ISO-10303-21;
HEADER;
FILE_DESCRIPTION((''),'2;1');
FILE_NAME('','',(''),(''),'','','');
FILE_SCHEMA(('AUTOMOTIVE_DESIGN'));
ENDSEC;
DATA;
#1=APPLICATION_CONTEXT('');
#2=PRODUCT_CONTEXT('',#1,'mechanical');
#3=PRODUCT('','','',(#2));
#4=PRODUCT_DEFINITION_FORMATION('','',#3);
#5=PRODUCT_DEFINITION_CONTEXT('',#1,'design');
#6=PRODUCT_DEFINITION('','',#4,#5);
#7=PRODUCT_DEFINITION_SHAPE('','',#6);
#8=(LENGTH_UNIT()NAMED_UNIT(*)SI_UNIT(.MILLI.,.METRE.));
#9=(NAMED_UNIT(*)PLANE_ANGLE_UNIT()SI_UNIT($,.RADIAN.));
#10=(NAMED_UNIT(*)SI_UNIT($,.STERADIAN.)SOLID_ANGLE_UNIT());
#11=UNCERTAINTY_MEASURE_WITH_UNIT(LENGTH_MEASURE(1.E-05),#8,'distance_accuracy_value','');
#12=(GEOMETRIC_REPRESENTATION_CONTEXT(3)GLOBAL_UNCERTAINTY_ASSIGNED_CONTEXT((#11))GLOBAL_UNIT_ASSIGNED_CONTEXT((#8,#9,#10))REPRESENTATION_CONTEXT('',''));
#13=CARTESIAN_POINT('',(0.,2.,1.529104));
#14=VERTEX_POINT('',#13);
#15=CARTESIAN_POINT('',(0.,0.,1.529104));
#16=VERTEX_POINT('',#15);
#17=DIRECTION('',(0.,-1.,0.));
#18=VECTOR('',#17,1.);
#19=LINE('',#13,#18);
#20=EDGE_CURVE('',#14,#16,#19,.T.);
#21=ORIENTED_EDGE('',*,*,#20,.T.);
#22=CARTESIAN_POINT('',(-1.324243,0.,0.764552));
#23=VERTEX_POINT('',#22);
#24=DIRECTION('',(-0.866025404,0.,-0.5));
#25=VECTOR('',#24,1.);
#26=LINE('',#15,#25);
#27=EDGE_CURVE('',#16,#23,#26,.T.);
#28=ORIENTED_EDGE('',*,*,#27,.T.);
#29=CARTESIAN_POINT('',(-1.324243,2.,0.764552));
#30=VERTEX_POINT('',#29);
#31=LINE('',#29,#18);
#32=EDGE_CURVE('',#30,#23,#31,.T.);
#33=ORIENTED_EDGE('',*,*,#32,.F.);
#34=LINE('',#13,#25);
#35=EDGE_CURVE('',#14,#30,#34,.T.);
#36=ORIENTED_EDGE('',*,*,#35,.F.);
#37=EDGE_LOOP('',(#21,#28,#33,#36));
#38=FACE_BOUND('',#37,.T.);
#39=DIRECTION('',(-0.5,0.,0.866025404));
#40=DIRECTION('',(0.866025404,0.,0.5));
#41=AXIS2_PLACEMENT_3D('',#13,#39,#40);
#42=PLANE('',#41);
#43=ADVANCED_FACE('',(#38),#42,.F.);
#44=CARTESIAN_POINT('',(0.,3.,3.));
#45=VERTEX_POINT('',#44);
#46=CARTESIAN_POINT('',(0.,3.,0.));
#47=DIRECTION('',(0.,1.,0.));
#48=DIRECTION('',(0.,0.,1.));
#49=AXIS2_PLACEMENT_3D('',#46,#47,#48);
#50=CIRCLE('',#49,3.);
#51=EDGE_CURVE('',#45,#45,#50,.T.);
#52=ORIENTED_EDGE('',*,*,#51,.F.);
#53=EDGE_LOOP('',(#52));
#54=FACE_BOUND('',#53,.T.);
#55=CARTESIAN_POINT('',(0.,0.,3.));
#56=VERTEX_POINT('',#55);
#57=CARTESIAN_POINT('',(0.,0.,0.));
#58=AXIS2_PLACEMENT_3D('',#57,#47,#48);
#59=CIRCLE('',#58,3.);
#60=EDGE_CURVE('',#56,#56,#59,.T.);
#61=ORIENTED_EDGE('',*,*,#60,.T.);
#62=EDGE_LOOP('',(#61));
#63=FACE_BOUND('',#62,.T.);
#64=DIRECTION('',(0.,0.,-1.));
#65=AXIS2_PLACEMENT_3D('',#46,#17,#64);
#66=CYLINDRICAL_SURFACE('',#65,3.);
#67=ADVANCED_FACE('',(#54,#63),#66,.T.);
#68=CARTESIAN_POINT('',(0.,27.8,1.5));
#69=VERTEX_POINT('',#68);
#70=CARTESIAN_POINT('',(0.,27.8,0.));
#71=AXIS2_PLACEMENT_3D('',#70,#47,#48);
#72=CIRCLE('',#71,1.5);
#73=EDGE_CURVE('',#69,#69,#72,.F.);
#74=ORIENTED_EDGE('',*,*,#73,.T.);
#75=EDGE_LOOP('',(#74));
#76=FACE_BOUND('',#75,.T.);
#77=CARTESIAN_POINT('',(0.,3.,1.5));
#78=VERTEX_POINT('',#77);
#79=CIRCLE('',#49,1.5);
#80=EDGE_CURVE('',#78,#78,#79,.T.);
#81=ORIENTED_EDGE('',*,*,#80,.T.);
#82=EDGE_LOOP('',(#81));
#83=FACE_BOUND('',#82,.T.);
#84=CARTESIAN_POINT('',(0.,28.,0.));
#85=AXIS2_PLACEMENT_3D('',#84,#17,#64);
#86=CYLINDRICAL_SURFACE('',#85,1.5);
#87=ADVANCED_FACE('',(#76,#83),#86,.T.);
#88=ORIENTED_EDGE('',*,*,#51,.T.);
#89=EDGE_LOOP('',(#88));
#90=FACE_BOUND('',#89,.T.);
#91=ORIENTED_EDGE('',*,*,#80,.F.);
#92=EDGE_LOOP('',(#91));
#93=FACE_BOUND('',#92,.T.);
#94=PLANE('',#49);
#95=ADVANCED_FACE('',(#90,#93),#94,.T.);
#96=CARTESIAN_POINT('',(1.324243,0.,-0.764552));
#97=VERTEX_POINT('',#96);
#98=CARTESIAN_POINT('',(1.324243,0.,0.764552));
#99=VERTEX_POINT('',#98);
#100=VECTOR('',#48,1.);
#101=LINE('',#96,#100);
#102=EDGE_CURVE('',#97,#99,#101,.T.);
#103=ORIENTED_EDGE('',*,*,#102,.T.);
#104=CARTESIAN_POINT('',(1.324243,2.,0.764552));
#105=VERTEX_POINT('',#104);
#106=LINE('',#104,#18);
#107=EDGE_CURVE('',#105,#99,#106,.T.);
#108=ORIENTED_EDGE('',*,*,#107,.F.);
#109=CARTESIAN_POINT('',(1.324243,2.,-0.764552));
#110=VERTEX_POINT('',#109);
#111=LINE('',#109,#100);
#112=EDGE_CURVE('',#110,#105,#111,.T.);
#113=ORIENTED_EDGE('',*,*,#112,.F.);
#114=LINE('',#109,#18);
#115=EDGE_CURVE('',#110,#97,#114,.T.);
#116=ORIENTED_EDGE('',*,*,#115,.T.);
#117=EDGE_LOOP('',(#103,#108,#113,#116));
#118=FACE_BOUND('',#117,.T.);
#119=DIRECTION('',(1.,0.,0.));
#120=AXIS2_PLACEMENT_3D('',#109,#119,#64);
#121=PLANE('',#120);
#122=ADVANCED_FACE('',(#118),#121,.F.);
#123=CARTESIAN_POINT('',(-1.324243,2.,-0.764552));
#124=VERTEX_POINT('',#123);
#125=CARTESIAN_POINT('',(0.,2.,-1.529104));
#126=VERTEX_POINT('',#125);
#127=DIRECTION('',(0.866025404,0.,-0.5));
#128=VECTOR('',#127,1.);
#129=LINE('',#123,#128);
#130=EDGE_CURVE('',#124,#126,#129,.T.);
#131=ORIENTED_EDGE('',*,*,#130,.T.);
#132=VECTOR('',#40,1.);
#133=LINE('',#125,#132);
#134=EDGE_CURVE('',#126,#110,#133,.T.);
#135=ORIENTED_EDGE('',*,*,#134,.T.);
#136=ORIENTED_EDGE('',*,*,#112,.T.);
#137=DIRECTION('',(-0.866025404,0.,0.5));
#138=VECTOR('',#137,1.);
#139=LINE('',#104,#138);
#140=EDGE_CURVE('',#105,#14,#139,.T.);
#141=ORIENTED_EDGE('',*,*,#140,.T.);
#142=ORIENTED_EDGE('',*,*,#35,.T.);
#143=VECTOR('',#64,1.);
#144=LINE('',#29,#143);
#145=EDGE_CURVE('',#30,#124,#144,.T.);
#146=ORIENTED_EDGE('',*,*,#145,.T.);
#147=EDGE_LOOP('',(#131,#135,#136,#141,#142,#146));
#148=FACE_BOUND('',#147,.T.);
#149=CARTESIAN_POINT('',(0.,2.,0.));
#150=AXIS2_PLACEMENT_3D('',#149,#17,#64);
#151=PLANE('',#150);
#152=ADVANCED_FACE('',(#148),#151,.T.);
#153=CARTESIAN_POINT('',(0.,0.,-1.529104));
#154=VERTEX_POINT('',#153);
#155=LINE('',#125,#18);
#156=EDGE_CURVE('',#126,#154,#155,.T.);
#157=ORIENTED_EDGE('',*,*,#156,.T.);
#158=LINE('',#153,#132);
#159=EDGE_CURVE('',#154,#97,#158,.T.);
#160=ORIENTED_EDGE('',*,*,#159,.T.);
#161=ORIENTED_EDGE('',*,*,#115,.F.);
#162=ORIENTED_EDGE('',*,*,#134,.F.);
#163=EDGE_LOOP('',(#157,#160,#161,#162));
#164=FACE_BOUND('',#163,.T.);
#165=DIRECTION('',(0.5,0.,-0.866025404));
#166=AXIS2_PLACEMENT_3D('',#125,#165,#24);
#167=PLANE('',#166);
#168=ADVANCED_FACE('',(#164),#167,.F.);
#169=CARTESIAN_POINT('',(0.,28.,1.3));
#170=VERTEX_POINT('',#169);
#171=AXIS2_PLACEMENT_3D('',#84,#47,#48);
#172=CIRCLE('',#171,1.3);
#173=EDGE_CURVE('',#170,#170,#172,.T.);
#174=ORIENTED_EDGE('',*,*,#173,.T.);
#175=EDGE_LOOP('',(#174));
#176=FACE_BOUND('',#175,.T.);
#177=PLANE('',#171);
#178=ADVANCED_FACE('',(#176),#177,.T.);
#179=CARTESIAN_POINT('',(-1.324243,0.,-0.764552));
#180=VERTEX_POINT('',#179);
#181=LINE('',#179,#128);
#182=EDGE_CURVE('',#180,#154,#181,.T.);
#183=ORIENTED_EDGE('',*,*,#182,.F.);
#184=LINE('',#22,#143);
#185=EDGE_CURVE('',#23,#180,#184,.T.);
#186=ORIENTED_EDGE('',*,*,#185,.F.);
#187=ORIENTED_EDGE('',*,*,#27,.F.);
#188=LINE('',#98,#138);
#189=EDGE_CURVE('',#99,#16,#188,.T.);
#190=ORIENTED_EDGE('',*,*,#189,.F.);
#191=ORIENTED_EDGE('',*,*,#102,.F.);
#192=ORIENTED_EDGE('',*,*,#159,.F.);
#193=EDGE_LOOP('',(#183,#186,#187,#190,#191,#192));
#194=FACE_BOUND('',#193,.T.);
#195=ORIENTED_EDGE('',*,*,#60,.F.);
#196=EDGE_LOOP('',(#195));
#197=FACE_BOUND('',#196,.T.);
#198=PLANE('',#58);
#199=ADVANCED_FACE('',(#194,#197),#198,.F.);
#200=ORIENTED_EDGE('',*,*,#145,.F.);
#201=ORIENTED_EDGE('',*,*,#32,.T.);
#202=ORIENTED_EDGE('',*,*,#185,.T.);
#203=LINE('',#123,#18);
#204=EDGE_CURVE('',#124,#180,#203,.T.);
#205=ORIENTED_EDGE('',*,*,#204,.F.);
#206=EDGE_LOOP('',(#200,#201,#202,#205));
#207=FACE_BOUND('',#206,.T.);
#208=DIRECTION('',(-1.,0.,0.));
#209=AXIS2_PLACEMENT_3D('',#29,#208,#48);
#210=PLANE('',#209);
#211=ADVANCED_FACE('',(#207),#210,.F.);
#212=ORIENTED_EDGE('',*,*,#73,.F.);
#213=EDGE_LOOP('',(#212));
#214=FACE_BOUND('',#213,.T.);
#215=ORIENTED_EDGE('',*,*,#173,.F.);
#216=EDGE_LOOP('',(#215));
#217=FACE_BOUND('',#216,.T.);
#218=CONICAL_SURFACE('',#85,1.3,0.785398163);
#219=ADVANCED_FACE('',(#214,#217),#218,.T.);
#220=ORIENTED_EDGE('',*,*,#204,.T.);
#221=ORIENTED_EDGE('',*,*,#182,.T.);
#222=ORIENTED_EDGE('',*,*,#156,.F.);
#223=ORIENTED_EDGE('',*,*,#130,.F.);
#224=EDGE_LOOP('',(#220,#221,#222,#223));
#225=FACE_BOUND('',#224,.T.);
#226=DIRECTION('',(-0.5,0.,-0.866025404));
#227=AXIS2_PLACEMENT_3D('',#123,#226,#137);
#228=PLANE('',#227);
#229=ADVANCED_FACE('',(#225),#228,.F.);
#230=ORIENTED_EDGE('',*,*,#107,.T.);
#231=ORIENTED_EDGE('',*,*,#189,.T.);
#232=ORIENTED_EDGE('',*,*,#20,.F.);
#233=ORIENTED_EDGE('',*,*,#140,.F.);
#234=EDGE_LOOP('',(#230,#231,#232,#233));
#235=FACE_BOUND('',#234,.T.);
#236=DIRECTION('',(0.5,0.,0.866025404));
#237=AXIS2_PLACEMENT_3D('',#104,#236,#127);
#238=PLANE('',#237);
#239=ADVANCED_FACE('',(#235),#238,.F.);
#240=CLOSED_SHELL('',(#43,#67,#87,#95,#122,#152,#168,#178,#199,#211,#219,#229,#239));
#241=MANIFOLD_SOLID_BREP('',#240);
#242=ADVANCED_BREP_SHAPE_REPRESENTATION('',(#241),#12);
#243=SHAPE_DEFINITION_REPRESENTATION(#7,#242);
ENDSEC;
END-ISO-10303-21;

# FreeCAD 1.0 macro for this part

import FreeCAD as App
import Part
import Sketcher
Q = App.Units.Quantity


def edges_at(feature, points):
    """Names of the edges that pass closest to the given points."""
    edges = feature.Shape.Edges
    near = lambda p: min(range(len(edges)), key=lambda i: edges[i].distToShape(Part.Vertex(*p))[0])
    return sorted({f"Edge{near(p) + 1}" for p in points})


def add_polygon(sketch, points):
    """Adds a closed chain of lines whose ends are joined by coincident constraints."""
    first, n = sketch.GeometryCount, len(points)
    for a, b in zip(points, points[1:] + points[:1]):
        sketch.addGeometry(Part.LineSegment(App.Vector(*a, 0), App.Vector(*b, 0)), False)
    for i in range(n):
        sketch.addConstraint(Sketcher.Constraint("Coincident", first + i, 2, first + (i + 1) % n, 1))

doc = App.newDocument("Part")
body = doc.addObject("PartDesign::Body", "Body")

# Sketch on XZ plane
sketch1 = body.newObject("Sketcher::SketchObject", "Sketch")
sketch1.AttachmentSupport = (doc.getObject("XZ_Plane"), [""])
sketch1.MapMode = "FlatFace"
sketch1.addGeometry(Part.Circle(App.Vector(0, 0, 0), App.Vector(0, 0, 1), 3), False)
sketch1.addConstraint([
    Sketcher.Constraint("Coincident", 0, 3, -1, 1),
    Sketcher.Constraint("Diameter", 0, Q("6 mm")),
])
pad1 = body.newObject("PartDesign::Pad", "Pad")
pad1.Profile = sketch1
pad1.Length = 3
pad1.Reversed = True

# Sketch on XZ plane
sketch2 = body.newObject("Sketcher::SketchObject", "Sketch001")
sketch2.AttachmentSupport = (doc.getObject("XZ_Plane"), [""])
sketch2.MapMode = "FlatFace"
sketch2.AttachmentOffset = App.Placement(App.Vector(0, 0, -3), App.Rotation())
sketch2.addGeometry(Part.Circle(App.Vector(0, 0, 0), App.Vector(0, 0, 1), 1.5), False)
sketch2.addConstraint([
    Sketcher.Constraint("Coincident", 0, 3, -1, 1),
    Sketcher.Constraint("Diameter", 0, Q("3 mm")),
])
pad2 = body.newObject("PartDesign::Pad", "Pad001")
pad2.Profile = sketch2
pad2.Length = 25
pad2.Reversed = True
doc.recompute()

chamfer = body.newObject("PartDesign::Chamfer", "Chamfer")
chamfer.Base = (pad2, edges_at(pad2, [(0, 28, -1.5)]))
chamfer.Size = 0.2

# Sketch on XZ plane
sketch3 = body.newObject("Sketcher::SketchObject", "Sketch002")
sketch3.AttachmentSupport = (doc.getObject("XZ_Plane"), [""])
sketch3.MapMode = "FlatFace"
add_polygon(sketch3, [(0, 1.529104), (-1.324243, 0.764552), (-1.324243, -0.764552), (0, -1.529104), (1.324243, -0.764552), (1.324243, 0.764552)])  # lines 0-5
sketch3.addConstraint([
    Sketcher.Constraint("Vertical", 1),
    Sketcher.Constraint("Vertical", 4),
    Sketcher.Constraint("Symmetric", 0, 2, 3, 2, -1, 1),
    Sketcher.Constraint("Symmetric", 2, 2, 5, 2, -1, 1),
    Sketcher.Constraint("PointOnObject", 2, 2, -2),
    Sketcher.Constraint("Parallel", 2, 5),
    Sketcher.Constraint("Horizontal", 1, 2, 3, 2),
    Sketcher.Constraint("Angle", 0, Q("-150 deg")),
    Sketcher.Constraint("DistanceY", 1, 2, 1, 1, Q("1.529104 mm")),
    Sketcher.Constraint("DistanceY", 2, 2, 1, 2, Q("0.764552 mm")),
])
pocket1 = body.newObject("PartDesign::Pocket", "Pocket")
pocket1.Profile = sketch3
pocket1.Length = 2

doc.recompute()
